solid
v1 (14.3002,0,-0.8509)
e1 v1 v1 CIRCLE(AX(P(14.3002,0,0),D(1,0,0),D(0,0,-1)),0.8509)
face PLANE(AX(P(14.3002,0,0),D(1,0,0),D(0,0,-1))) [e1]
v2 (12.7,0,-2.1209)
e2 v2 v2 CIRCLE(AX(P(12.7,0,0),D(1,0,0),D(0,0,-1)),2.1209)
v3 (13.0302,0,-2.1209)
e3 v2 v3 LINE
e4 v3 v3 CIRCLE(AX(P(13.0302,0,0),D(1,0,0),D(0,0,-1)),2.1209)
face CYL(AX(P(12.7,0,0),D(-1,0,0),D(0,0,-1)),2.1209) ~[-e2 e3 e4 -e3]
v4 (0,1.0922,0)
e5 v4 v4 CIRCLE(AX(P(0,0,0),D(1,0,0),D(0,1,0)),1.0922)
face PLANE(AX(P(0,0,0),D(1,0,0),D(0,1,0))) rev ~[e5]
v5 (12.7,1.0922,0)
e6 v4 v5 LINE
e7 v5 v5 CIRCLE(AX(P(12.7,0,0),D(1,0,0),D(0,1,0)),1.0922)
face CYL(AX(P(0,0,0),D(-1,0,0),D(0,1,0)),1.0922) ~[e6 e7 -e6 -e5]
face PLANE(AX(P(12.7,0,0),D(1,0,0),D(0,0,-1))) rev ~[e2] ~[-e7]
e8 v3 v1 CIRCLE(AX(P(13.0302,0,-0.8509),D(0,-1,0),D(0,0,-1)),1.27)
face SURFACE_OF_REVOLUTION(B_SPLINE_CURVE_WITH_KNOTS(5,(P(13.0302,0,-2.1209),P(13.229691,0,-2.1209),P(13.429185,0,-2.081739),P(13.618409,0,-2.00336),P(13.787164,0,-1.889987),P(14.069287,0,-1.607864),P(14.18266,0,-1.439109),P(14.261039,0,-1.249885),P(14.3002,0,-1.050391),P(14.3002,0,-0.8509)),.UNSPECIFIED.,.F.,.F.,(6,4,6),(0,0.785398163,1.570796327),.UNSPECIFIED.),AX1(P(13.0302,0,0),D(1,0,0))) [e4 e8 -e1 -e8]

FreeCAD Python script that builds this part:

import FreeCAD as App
import Part
import Sketcher
Q = App.Units.Quantity


def edges_at(feature, points):
    """Names of the edges that pass closest to the given points."""
    edges = feature.Shape.Edges
    near = lambda p: min(range(len(edges)), key=lambda i: edges[i].distToShape(Part.Vertex(*p))[0])
    return sorted({f"Edge{near(p) + 1}" for p in points})

doc = App.newDocument("Part")
body = doc.addObject("PartDesign::Body", "Body")

sketch1 = body.newObject("Sketcher::SketchObject", "Sketch")
sketch1.AttachmentSupport = (doc.getObject("YZ_Plane"), [""])
sketch1.MapMode = "FlatFace"
sketch1.addGeometry(Part.Circle(App.Vector(0, 0, 0), App.Vector(0, 0, 1), 1.1), False)
sketch1.addConstraint(Sketcher.Constraint("Coincident", 0, 3, -1, 1))
sketch1.addConstraint(Sketcher.Constraint("Diameter", 0, Q("0.086 in")))
pad1 = body.newObject("PartDesign::Pad", "Pad")
pad1.Profile = sketch1
pad1.Length = Q("0.5 in")

sketch2 = body.newObject("Sketcher::SketchObject", "Sketch001")
sketch2.AttachmentSupport = (doc.getObject("YZ_Plane"), [""])
sketch2.MapMode = "FlatFace"
sketch2.AttachmentOffset = App.Placement(App.Vector(0, 0, 0.5 * 25.4), App.Rotation())
sketch2.addGeometry(Part.Circle(App.Vector(0, 0, 0), App.Vector(0, 0, 1), 2.1), False)
sketch2.addConstraint(Sketcher.Constraint("Coincident", 0, 3, -1, 1))
sketch2.addConstraint(Sketcher.Constraint("Diameter", 0, Q("0.167 in")))
pad2 = body.newObject("PartDesign::Pad", "Pad001")
pad2.Profile = sketch2
pad2.Length = Q("0.063 in")
doc.recompute()

fillet = body.newObject("PartDesign::Fillet", "Fillet")
fillet.Base = (pad2, edges_at(pad2, [(14.3, 0, 2.121)]))
fillet.Radius = Q("0.05 in")

doc.recompute()
